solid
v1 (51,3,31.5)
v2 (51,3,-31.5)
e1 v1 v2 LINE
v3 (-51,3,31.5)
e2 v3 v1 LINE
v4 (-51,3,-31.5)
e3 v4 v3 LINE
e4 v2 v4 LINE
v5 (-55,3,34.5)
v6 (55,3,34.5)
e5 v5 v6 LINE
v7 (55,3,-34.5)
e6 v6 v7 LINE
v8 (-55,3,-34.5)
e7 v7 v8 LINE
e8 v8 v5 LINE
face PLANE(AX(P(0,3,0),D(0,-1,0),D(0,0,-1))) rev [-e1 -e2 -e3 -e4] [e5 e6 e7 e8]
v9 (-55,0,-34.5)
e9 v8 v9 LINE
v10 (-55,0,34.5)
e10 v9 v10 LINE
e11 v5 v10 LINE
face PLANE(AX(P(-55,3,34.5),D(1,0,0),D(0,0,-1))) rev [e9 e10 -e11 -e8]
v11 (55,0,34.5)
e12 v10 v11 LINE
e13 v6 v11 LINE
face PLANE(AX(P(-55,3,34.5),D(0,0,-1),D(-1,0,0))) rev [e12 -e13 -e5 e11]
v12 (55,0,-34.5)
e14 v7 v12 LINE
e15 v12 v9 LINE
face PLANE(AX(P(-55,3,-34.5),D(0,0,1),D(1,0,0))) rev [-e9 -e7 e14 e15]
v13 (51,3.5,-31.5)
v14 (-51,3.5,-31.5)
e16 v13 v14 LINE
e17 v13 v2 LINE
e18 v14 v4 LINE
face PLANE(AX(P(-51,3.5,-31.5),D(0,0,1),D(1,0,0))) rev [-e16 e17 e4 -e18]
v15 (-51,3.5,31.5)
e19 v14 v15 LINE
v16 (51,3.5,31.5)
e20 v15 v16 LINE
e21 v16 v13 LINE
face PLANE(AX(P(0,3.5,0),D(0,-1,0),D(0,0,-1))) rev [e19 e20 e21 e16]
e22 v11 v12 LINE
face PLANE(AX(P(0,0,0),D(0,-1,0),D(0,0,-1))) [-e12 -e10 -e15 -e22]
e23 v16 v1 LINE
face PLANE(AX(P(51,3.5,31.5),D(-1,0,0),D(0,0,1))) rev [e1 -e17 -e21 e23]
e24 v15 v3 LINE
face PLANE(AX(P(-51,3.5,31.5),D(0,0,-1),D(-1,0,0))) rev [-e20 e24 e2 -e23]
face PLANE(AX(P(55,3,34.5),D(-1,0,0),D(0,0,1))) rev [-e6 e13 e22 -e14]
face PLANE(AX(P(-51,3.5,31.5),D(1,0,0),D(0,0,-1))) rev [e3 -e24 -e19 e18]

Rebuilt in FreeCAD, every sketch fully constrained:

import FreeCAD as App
import Part
import Sketcher
from FreeCAD import Vector

doc = App.newDocument("Part")
body = doc.addObject("PartDesign::Body", "Body")

# Sketch on XZ plane
sketch1 = doc.addObject("Sketcher::SketchObject", "Sketch")
body.addObject(sketch1)
sketch1.AttachmentSupport = (doc.XZ_Plane, [""])
sketch1.MapMode = "FlatFace"
sketch1.addGeometry([
    Part.LineSegment(Vector(-55, -34, 0), Vector(-55, 34, 0)),
    Part.LineSegment(Vector(-55, 34, 0), Vector(55, 34, 0)),
    Part.LineSegment(Vector(55, 34, 0), Vector(55, -34, 0)),
    Part.LineSegment(Vector(55, -34, 0), Vector(-55, -34, 0)),
], False)
sketch1.addConstraint([
    Sketcher.Constraint("Coincident", 0, 2, 1, 1),
    Sketcher.Constraint("Coincident", 1, 2, 2, 1),
    Sketcher.Constraint("Coincident", 2, 2, 3, 1),
    Sketcher.Constraint("Coincident", 3, 2, 0, 1),
    Sketcher.Constraint("Vertical", 0),
    Sketcher.Constraint("Horizontal", 1),
    Sketcher.Constraint("Vertical", 2),
    Sketcher.Constraint("Horizontal", 3),
    Sketcher.Constraint("Symmetric", 0, 2, 2, 2, -1, 1),
    Sketcher.Constraint("DistanceX", 1, 1, 1, 2, 110.0),
    Sketcher.Constraint("DistanceY", 0, 1, 0, 2, 69.0),
])
pad1 = doc.addObject("PartDesign::Pad", "Pad")
body.addObject(pad1)
pad1.Profile = sketch1
pad1.Length = 3
pad1.Reversed = True

# Sketch on XZ plane
sketch2 = doc.addObject("Sketcher::SketchObject", "Sketch001")
body.addObject(sketch2)
sketch2.AttachmentSupport = (doc.XZ_Plane, [""])
sketch2.MapMode = "FlatFace"
sketch2.AttachmentOffset = App.Placement(Vector(0, 0, -3), App.Rotation())
sketch2.addGeometry([
    Part.LineSegment(Vector(-51, -32, 0), Vector(-51, 32, 0)),
    Part.LineSegment(Vector(-51, 32, 0), Vector(51, 32, 0)),
    Part.LineSegment(Vector(51, 32, 0), Vector(51, -32, 0)),
    Part.LineSegment(Vector(51, -32, 0), Vector(-51, -32, 0)),
], False)
sketch2.addConstraint([
    Sketcher.Constraint("Coincident", 0, 2, 1, 1),
    Sketcher.Constraint("Coincident", 1, 2, 2, 1),
    Sketcher.Constraint("Coincident", 2, 2, 3, 1),
    Sketcher.Constraint("Coincident", 3, 2, 0, 1),
    Sketcher.Constraint("Vertical", 0),
    Sketcher.Constraint("Horizontal", 1),
    Sketcher.Constraint("Vertical", 2),
    Sketcher.Constraint("Horizontal", 3),
    Sketcher.Constraint("Symmetric", 0, 2, 2, 2, -1, 1),
    Sketcher.Constraint("DistanceX", 1, 1, 1, 2, 102.0),
    Sketcher.Constraint("DistanceY", 0, 1, 0, 2, 63.0),
])
pad2 = doc.addObject("PartDesign::Pad", "Pad001")
body.addObject(pad2)
pad2.Profile = sketch2
pad2.Length = 0.5
pad2.Reversed = True

doc.recompute()
